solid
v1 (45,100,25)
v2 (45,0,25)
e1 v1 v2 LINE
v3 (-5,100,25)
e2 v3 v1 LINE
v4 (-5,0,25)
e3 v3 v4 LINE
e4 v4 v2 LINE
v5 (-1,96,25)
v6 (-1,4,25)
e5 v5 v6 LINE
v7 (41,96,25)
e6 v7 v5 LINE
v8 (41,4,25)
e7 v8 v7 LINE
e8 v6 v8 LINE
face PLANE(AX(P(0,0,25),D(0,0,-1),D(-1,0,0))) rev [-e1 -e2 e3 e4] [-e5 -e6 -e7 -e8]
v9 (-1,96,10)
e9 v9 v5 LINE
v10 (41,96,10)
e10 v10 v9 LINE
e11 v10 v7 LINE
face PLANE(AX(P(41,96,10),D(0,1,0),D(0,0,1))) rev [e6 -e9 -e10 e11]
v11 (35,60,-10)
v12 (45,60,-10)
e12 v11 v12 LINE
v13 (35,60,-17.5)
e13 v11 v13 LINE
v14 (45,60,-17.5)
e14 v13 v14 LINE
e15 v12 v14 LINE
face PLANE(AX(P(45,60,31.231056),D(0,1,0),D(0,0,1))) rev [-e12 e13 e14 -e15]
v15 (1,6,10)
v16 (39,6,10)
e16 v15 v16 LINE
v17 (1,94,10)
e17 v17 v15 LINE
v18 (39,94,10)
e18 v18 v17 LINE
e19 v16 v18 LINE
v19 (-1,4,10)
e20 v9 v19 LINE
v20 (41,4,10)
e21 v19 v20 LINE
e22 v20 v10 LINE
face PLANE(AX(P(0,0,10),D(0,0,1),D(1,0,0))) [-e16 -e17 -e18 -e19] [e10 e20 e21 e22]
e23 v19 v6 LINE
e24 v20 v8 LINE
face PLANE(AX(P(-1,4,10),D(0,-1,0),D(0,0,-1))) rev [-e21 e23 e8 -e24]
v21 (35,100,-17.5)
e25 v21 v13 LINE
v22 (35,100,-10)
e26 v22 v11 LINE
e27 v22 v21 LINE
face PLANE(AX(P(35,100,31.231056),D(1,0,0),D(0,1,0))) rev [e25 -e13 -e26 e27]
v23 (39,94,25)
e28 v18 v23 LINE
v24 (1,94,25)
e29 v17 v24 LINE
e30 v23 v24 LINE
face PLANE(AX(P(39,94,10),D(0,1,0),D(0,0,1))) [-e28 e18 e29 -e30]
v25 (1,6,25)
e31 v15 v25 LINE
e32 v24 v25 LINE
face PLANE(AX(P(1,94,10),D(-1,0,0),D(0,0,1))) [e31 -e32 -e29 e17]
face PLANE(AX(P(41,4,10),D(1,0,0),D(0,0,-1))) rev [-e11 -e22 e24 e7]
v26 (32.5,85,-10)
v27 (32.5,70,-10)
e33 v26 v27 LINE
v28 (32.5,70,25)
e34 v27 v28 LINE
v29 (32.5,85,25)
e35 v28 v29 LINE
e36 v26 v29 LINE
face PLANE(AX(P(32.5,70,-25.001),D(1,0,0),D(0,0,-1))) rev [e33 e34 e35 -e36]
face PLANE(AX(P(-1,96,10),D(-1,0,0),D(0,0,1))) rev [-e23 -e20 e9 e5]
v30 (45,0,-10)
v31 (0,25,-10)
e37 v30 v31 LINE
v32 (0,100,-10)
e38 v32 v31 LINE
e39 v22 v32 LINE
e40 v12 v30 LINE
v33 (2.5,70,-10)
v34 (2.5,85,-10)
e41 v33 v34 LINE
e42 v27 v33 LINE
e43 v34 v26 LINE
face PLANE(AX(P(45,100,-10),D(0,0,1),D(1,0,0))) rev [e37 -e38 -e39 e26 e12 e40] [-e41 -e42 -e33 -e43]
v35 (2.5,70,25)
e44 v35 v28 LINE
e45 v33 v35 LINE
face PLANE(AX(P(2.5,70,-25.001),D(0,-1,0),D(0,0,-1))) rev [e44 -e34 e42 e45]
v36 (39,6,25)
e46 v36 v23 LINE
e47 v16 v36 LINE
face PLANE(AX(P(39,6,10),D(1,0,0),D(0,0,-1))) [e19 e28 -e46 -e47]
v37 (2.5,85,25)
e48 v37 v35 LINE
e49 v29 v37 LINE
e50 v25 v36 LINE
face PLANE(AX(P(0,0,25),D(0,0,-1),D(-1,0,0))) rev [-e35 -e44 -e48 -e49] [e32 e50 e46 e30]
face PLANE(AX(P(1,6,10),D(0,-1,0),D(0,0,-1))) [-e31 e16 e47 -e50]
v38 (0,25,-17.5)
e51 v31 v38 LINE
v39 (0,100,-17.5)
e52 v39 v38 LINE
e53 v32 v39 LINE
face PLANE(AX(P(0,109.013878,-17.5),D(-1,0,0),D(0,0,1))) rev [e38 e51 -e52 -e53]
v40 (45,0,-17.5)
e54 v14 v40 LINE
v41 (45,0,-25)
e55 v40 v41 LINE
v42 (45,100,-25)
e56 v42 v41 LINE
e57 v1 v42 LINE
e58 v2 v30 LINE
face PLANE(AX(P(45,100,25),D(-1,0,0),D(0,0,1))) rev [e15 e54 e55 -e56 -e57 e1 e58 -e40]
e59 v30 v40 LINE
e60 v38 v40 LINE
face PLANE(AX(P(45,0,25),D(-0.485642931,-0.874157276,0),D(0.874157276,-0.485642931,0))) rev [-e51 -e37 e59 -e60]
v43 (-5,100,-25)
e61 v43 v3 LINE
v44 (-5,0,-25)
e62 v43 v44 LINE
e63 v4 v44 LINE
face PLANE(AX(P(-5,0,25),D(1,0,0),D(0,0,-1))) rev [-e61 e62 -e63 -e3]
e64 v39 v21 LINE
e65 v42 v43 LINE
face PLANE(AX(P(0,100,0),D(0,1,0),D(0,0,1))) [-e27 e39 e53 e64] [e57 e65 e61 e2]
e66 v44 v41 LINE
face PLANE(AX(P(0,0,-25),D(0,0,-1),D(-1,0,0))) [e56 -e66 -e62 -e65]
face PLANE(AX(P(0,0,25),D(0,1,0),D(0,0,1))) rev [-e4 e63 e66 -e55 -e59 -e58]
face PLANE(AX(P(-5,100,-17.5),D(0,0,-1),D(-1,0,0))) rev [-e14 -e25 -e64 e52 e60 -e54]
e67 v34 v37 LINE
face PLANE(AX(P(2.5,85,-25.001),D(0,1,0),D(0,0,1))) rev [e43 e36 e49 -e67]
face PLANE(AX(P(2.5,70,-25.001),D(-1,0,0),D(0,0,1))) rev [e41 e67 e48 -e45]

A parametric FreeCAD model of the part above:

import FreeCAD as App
import Part
import Sketcher
Q = App.Units.Quantity


def add_polygon(sketch, points):
    """Adds a closed chain of lines whose ends are joined by coincident constraints."""
    first, n = sketch.GeometryCount, len(points)
    for a, b in zip(points, points[1:] + points[:1]):
        sketch.addGeometry(Part.LineSegment(App.Vector(*a, 0), App.Vector(*b, 0)), False)
    for i in range(n):
        sketch.addConstraint(Sketcher.Constraint("Coincident", first + i, 2, first + (i + 1) % n, 1))

doc = App.newDocument("Part")
body = doc.addObject("PartDesign::Body", "Body")

sketch1 = body.newObject("Sketcher::SketchObject", "Sketch")
sketch1.AttachmentSupport = (doc.getObject("XY_Plane"), [""])
sketch1.MapMode = "FlatFace"
add_polygon(sketch1, [(45, 0), (0, 25), (-5, 25), (-5, 0)])
sketch1.addConstraint([
    Sketcher.Constraint("Horizontal", 1),
    Sketcher.Constraint("Vertical", 2),
    Sketcher.Constraint("Horizontal", 3),
    Sketcher.Constraint("PointOnObject", 0, 2, -2),
    Sketcher.Constraint("PointOnObject", 2, 2, -1),
    Sketcher.Constraint("DistanceX", 1, 2, 1, 1, Q("5 mm")),
    Sketcher.Constraint("DistanceX", 3, 1, 3, 2, Q("50 mm")),
    Sketcher.Constraint("DistanceY", 2, 2, 2, 1, Q("25 mm")),
])
pad1 = body.newObject("PartDesign::Pad", "Pad")
pad1.Profile = sketch1
pad1.Length = 50
pad1.Midplane = True

sketch2 = body.newObject("Sketcher::SketchObject", "Sketch001")
sketch2.AttachmentSupport = (doc.getObject("XZ_Plane"), [""])
sketch2.MapMode = "FlatFace"
add_polygon(sketch2, [(-5, -10), (-5, 25), (45, 25), (45, -10)])
add_polygon(sketch2, [(-5, -25), (-5, -18), (45, -18), (45, -25)])
sketch2.addConstraint([
    Sketcher.Constraint("Vertical", 0),
    Sketcher.Constraint("Horizontal", 1),
    Sketcher.Constraint("Vertical", 2),
    Sketcher.Constraint("Horizontal", 3),
    Sketcher.Constraint("Vertical", 4),
    Sketcher.Constraint("Horizontal", 5),
    Sketcher.Constraint("Vertical", 6),
    Sketcher.Constraint("Horizontal", 7),
    Sketcher.Constraint("Symmetric", 1, 2, 6, 2, -1),
    Sketcher.Constraint("Vertical", 3, 2, 4, 2),
    Sketcher.Constraint("DistanceX", 1, 1, 1, 2, Q("50 mm")),
    Sketcher.Constraint("DistanceY", 0, 1, 0, 2, Q("35 mm")),
    Sketcher.Constraint("DistanceY", 4, 1, 4, 2, Q("7.5 mm")),
    Sketcher.Constraint("DistanceX", 0, 2, -1, 1, Q("5 mm")),
    Sketcher.Constraint("DistanceY", -1, 1, 0, 2, Q("25 mm")),
])
pad2 = body.newObject("PartDesign::Pad", "Pad001")
pad2.Profile = sketch2
pad2.Length = 100
pad2.Reversed = True

sketch3 = body.newObject("Sketcher::SketchObject", "Sketch002")
sketch3.AttachmentSupport = (doc.getObject("XZ_Plane"), [""])
sketch3.MapMode = "FlatFace"
sketch3.AttachmentOffset = App.Placement(App.Vector(0, 0, -25), App.Rotation())
add_polygon(sketch3, [(-5, -18), (-5, -10), (0, -10), (0, -18)])
sketch3.addConstraint([
    Sketcher.Constraint("Vertical", 0),
    Sketcher.Constraint("Horizontal", 1),
    Sketcher.Constraint("Vertical", 2),
    Sketcher.Constraint("Horizontal", 3),
    Sketcher.Constraint("PointOnObject", 1, 2, -2),
    Sketcher.Constraint("DistanceX", 1, 1, 1, 2, Q("5 mm")),
    Sketcher.Constraint("DistanceY", 0, 1, 0, 2, Q("7.5 mm")),
    Sketcher.Constraint("DistanceY", 0, 2, -1, 1, Q("10 mm")),
])
pad3 = body.newObject("PartDesign::Pad", "Pad002")
pad3.Profile = sketch3
pad3.Length = 75
pad3.Reversed = True

sketch4 = body.newObject("Sketcher::SketchObject", "Sketch003")
sketch4.AttachmentSupport = (doc.getObject("XY_Plane"), [""])
sketch4.MapMode = "FlatFace"
sketch4.AttachmentOffset = App.Placement(App.Vector(0, 0, -17.5), App.Rotation())
add_polygon(sketch4, [(35, 100), (35, 60), (45, 60), (45, 100)])
sketch4.addConstraint([
    Sketcher.Constraint("Vertical", 0),
    Sketcher.Constraint("Horizontal", 1),
    Sketcher.Constraint("Vertical", 2),
    Sketcher.Constraint("Horizontal", 3),
    Sketcher.Constraint("DistanceX", 1, 1, 1, 2, Q("10 mm")),
    Sketcher.Constraint("DistanceY", 0, 2, 0, 1, Q("40 mm")),
    Sketcher.Constraint("DistanceX", -1, 1, 0, 2, Q("35 mm")),
    Sketcher.Constraint("DistanceY", -1, 1, 0, 2, Q("60 mm")),
])
pad4 = body.newObject("PartDesign::Pad", "Pad003")
pad4.Profile = sketch4
pad4.Length = 7.5

sketch5 = body.newObject("Sketcher::SketchObject", "Sketch004")
sketch5.AttachmentSupport = (doc.getObject("XY_Plane"), [""])
sketch5.MapMode = "FlatFace"
sketch5.AttachmentOffset = App.Placement(App.Vector(0, 0, 25), App.Rotation())
add_polygon(sketch5, [(2, 85), (2, 70), (32, 70), (32, 85)])
sketch5.addConstraint([
    Sketcher.Constraint("Vertical", 0),
    Sketcher.Constraint("Horizontal", 1),
    Sketcher.Constraint("Vertical", 2),
    Sketcher.Constraint("Horizontal", 3),
    Sketcher.Constraint("DistanceX", 1, 1, 1, 2, Q("30 mm")),
    Sketcher.Constraint("DistanceY", 0, 2, 0, 1, Q("15 mm")),
    Sketcher.Constraint("DistanceY", -1, 1, 0, 2, Q("70 mm")),
    Sketcher.Constraint("DistanceX", -1, 1, 0, 2, Q("2.5 mm")),
])
pocket1 = body.newObject("PartDesign::Pocket", "Pocket")
pocket1.Profile = sketch5
pocket1.Type = "UpToFirst"

sketch6 = body.newObject("Sketcher::SketchObject", "Sketch005")
sketch6.AttachmentSupport = (doc.getObject("XY_Plane"), [""])
sketch6.MapMode = "FlatFace"
sketch6.AttachmentOffset = App.Placement(App.Vector(0, 0, 25), App.Rotation())
add_polygon(sketch6, [(-1, 96), (-1, 4), (41, 4), (41, 96)])
add_polygon(sketch6, [(39, 6), (1, 6), (1, 94), (39, 94)])
sketch6.addConstraint([
    Sketcher.Constraint("Vertical", 0),
    Sketcher.Constraint("Horizontal", 1),
    Sketcher.Constraint("Vertical", 2),
    Sketcher.Constraint("Horizontal", 3),
    Sketcher.Constraint("Horizontal", 4),
    Sketcher.Constraint("Vertical", 5),
    Sketcher.Constraint("Horizontal", 6),
    Sketcher.Constraint("Vertical", 7),
    Sketcher.Constraint("DistanceX", 1, 1, 1, 2, Q("42 mm")),
    Sketcher.Constraint("DistanceX", 4, 2, 4, 1, Q("38 mm")),
    Sketcher.Constraint("DistanceY", 0, 2, 0, 1, Q("92 mm")),
    Sketcher.Constraint("DistanceY", 5, 1, 5, 2, Q("88 mm")),
    Sketcher.Constraint("DistanceX", 0, 2, -1, 1, Q("1 mm")),
    Sketcher.Constraint("DistanceY", -1, 1, 0, 2, Q("4 mm")),
    Sketcher.Constraint("DistanceX", -1, 1, 4, 2, Q("1 mm")),
    Sketcher.Constraint("DistanceY", -1, 1, 4, 2, Q("6 mm")),
])
pocket2 = body.newObject("PartDesign::Pocket", "Pocket001")
pocket2.Profile = sketch6
pocket2.Length = 15

doc.recompute()
